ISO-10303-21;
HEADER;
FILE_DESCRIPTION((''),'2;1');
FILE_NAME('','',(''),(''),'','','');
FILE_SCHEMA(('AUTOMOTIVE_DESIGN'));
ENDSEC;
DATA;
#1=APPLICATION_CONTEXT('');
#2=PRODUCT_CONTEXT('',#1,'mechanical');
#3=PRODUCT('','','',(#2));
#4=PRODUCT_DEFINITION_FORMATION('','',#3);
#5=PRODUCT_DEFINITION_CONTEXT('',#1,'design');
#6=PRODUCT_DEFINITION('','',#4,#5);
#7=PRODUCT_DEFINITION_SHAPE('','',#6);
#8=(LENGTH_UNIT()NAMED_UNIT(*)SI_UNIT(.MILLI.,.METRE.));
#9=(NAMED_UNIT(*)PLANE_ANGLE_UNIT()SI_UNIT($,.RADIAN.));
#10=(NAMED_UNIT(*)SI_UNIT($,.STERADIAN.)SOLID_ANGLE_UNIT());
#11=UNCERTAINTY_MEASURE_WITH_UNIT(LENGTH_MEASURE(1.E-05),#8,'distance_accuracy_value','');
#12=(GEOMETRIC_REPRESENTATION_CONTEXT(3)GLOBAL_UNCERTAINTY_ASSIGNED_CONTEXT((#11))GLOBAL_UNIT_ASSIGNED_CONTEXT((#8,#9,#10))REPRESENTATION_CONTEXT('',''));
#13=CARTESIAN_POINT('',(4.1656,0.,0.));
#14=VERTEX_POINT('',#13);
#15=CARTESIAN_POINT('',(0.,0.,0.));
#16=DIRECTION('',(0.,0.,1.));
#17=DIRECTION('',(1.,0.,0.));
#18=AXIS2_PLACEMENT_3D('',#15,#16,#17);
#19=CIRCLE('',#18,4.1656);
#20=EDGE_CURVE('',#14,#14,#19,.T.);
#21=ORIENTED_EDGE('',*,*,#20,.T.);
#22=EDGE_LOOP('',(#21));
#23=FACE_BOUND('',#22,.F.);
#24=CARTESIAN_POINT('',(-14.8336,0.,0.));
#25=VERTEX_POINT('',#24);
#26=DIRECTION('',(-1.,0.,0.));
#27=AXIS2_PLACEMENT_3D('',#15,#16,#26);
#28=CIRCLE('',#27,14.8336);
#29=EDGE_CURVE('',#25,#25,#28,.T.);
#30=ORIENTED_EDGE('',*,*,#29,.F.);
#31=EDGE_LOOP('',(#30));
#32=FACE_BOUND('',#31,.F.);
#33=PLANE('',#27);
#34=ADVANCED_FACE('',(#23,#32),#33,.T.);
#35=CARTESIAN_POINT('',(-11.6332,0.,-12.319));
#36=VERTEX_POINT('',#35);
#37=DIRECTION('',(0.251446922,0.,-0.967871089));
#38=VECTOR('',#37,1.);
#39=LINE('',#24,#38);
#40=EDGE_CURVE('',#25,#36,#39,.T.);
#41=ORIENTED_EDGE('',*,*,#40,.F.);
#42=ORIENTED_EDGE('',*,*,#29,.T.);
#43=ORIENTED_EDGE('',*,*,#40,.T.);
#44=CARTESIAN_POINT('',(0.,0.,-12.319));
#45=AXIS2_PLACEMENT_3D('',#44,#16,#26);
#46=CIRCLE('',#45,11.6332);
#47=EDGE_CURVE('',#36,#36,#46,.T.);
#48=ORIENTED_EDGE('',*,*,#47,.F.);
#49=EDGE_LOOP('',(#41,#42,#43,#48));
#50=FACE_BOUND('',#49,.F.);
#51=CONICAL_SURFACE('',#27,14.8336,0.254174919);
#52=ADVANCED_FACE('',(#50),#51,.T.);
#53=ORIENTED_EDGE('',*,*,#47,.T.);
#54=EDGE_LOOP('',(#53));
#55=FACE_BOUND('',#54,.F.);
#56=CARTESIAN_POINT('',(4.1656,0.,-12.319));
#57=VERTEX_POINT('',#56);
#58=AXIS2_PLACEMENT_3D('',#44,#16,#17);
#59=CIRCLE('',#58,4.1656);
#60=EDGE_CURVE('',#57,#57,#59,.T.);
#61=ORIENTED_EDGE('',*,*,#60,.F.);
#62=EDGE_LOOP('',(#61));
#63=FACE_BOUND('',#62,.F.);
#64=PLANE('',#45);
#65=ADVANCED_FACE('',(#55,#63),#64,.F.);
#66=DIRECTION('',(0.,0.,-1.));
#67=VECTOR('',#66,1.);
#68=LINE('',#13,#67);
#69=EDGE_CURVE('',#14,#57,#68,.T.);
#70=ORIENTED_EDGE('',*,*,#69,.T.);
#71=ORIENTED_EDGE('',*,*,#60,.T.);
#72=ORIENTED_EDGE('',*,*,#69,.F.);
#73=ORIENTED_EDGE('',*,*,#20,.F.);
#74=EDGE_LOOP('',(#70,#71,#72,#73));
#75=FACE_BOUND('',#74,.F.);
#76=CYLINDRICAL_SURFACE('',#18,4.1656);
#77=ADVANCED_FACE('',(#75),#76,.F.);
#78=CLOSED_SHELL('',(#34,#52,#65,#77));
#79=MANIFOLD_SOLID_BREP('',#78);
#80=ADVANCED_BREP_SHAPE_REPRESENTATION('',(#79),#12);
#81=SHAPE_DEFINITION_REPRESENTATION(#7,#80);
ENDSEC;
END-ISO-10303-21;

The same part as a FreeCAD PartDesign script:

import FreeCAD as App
import Part
import Sketcher

V = App.Vector
Q = App.Units.Quantity

doc = App.newDocument("Part")
body = doc.addObject("PartDesign::Body", "Body")

sketch1 = body.newObject("Sketcher::SketchObject", "Sketch")
sketch1.AttachmentSupport = (doc.getObject("XZ_Plane"), [""])
sketch1.MapMode = "FlatFace"
sketch1.addGeometry([
    Part.LineSegment(V(0, 0, 0), V(-15, 0, 0)),
    Part.LineSegment(V(-15, 0, 0), V(-12, -12, 0)),
    Part.LineSegment(V(-12, -12, 0), V(0, -12, 0)),
    Part.LineSegment(V(0, -12, 0), V(0, 0, 0)),
], False)
sketch1.addConstraint([
    Sketcher.Constraint("Coincident", 0, 2, 1, 1),
    Sketcher.Constraint("Coincident", 1, 2, 2, 1),
    Sketcher.Constraint("Coincident", 2, 2, 3, 1),
    Sketcher.Constraint("Coincident", 3, 2, 0, 1),
    Sketcher.Constraint("Horizontal", 0),
    Sketcher.Constraint("Horizontal", 2),
    Sketcher.Constraint("Vertical", 3),
    Sketcher.Constraint("Coincident", 3, 2, -1, 1),
    Sketcher.Constraint("DistanceX", 0, 2, 0, 1, Q("0.584 in")),
    Sketcher.Constraint("DistanceX", 2, 1, 2, 2, Q("0.458 in")),
    Sketcher.Constraint("DistanceY", 3, 1, 3, 2, Q("0.485 in")),
])
revolution = body.newObject("PartDesign::Revolution", "Revolution")
revolution.Profile = sketch1
revolution.ReferenceAxis = (sketch1, ["V_Axis"])
revolution.Angle = 360

sketch2 = body.newObject("Sketcher::SketchObject", "Sketch001")
sketch2.AttachmentSupport = (doc.getObject("XY_Plane"), [""])
sketch2.MapMode = "FlatFace"
sketch2.addGeometry(Part.Circle(V(0, 0, 0), V(0, 0, 1), 4.2), False)
sketch2.addConstraint([
    Sketcher.Constraint("Coincident", 0, 3, -1, 1),
    Sketcher.Constraint("Diameter", 0, Q("0.328 in")),
])
pocket1 = body.newObject("PartDesign::Pocket", "Pocket")
pocket1.Profile = sketch2
pocket1.Type = "ThroughAll"

doc.recompute()
